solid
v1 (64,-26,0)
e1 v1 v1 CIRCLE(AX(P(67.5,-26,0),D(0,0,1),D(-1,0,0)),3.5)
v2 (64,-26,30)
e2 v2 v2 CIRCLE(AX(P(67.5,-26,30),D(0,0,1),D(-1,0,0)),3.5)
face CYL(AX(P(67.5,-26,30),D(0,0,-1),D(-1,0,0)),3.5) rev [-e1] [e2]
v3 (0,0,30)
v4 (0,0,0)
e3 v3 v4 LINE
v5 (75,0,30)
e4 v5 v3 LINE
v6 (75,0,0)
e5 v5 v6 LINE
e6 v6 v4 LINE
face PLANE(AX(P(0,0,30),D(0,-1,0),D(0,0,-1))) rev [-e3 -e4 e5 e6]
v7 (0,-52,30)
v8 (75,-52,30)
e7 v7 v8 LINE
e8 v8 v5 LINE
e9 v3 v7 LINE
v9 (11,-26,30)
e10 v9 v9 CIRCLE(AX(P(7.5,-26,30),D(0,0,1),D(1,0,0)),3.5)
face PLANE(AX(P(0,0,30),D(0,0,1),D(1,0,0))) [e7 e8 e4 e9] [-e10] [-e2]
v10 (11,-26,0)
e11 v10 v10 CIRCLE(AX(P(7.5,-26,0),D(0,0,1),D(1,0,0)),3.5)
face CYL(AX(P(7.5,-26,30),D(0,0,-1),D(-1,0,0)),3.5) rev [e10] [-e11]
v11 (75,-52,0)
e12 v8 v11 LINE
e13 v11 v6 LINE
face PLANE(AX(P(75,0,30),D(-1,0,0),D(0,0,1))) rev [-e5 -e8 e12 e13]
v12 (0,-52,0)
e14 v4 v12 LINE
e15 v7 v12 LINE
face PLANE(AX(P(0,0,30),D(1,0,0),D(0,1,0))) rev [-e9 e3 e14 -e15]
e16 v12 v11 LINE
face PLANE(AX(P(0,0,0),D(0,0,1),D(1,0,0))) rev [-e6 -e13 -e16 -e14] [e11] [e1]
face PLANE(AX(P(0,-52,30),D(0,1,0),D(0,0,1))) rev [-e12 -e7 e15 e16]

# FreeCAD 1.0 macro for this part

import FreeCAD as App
import Part
import Sketcher
from FreeCAD import Vector


def add_polygon(sketch, points):
    """Adds a closed chain of lines whose ends are joined by coincident constraints."""
    first, n = sketch.GeometryCount, len(points)
    for a, b in zip(points, points[1:] + points[:1]):
        sketch.addGeometry(Part.LineSegment(App.Vector(*a, 0), App.Vector(*b, 0)), False)
    for i in range(n):
        sketch.addConstraint(Sketcher.Constraint("Coincident", first + i, 2, first + (i + 1) % n, 1))

doc = App.newDocument("Part")
params = doc.addObject("Spreadsheet::Sheet", "Params")
for row, (alias, value) in enumerate([
    ("sketch1_diameter", "7 mm"),
    ("sketch1_width", "75 mm"),
    ("sketch1_height", "52 mm"),
    ("pad1_length", "30 mm"),
], start=1):
    params.set(f"A{row}", alias)
    params.set(f"B{row}", "=" + value)
    params.setAlias(f"B{row}", alias)

body = doc.addObject("PartDesign::Body", "Body")

sketch1 = body.newObject("Sketcher::SketchObject", "Sketch")
sketch1.AttachmentSupport = (doc.getObject("XY_Plane"), [""])
sketch1.MapMode = "FlatFace"
add_polygon(sketch1, [(0, 0), (0, -52), (75, -52), (75, 0)])
sketch1.addGeometry(Part.Circle(Vector(7.5, -26, 0), Vector(0, 0, 1), 3.5), False)
sketch1.addGeometry(Part.Circle(Vector(67.5, -26, 0), Vector(0, 0, 1), 3.5), False)
sketch1.addConstraint([
    Sketcher.Constraint("Vertical", 0),
    Sketcher.Constraint("Horizontal", 1),
    Sketcher.Constraint("Vertical", 2),
    Sketcher.Constraint("Horizontal", 3),
    Sketcher.Constraint("Coincident", 3, 2, -1, 1),
    Sketcher.Constraint("Equal", 4, 5),
    Sketcher.Constraint("Horizontal", 4, 3, 5, 3),
    Sketcher.Constraint("Diameter", 4, 7.0),
    Sketcher.Constraint("DistanceX", 1, 1, 1, 2, 75.0),
    Sketcher.Constraint("DistanceY", 0, 2, 0, 1, 52.0),
    Sketcher.Constraint("DistanceY", 4, 3, -1, 1, 26.0),
    Sketcher.Constraint("DistanceX", 4, 3, 5, 3, 60.0),
    Sketcher.Constraint("DistanceX", -1, 1, 4, 3, 7.5),
])
sketch1.setExpression("Constraints[11]", "Params.sketch1_diameter")
sketch1.setExpression("Constraints[12]", "Params.sketch1_width")
sketch1.setExpression("Constraints[13]", "Params.sketch1_height")
pad1 = body.newObject("PartDesign::Pad", "Pad")
pad1.Profile = sketch1
pad1.setExpression("Length", "Params.pad1_length")

doc.recompute()
